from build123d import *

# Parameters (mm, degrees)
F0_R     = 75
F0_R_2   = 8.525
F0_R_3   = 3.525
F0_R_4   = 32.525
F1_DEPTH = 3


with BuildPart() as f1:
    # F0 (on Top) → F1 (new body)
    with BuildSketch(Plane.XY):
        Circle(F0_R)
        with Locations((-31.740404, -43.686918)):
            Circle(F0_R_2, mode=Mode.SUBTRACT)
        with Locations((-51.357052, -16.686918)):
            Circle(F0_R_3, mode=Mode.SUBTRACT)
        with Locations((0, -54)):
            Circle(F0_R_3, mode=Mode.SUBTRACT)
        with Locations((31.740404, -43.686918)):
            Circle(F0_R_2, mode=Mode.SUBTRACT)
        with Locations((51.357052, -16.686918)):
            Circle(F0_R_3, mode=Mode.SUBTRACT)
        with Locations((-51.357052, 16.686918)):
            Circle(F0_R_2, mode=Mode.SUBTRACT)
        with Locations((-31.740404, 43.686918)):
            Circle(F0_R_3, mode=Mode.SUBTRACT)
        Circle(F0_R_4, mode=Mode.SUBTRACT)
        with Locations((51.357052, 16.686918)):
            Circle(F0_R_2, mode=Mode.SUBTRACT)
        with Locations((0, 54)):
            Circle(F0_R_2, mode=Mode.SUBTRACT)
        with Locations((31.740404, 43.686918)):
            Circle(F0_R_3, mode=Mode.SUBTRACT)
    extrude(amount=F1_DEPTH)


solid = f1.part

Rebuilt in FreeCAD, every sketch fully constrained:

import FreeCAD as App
import Part
import Sketcher

V = App.Vector

doc = App.newDocument("Part")
body = doc.addObject("PartDesign::Body", "Body")

# Sketch on XY plane
sketch1 = doc.addObject("Sketcher::SketchObject", "Sketch")
body.addObject(sketch1)
sketch1.AttachmentSupport = (doc.XY_Plane, [""])
sketch1.MapMode = "FlatFace"
sketch1.addGeometry(Part.Circle(V(0, 0, 0), V(0, 0, 1), 75), False)
sketch1.addGeometry(Part.Circle(V(-31.740404, -43.686918, 0), V(0, 0, 1), 8.525), False)
sketch1.addGeometry(Part.Circle(V(-51.357052, -16.686918, 0), V(0, 0, 1), 3.525), False)
sketch1.addGeometry(Part.Circle(V(0, -54, 0), V(0, 0, 1), 3.525), False)
sketch1.addGeometry(Part.Circle(V(31.740404, -43.686918, 0), V(0, 0, 1), 8.525), False)
sketch1.addGeometry(Part.Circle(V(0, 0, 0), V(0, 0, 1), 32.525), False)
sketch1.addGeometry(Part.Circle(V(51.357052, -16.686918, 0), V(0, 0, 1), 3.525), False)
sketch1.addGeometry(Part.Circle(V(-51.357052, 16.686918, 0), V(0, 0, 1), 8.525), False)
sketch1.addGeometry(Part.Circle(V(-31.740404, 43.686918, 0), V(0, 0, 1), 3.525), False)
sketch1.addGeometry(Part.Circle(V(51.357052, 16.686918, 0), V(0, 0, 1), 8.525), False)
sketch1.addGeometry(Part.Circle(V(0, 54, 0), V(0, 0, 1), 8.525), False)
sketch1.addGeometry(Part.Circle(V(31.740404, 43.686918, 0), V(0, 0, 1), 3.525), False)
sketch1.addConstraint(Sketcher.Constraint("Coincident", 0, 3, -1, 1))
sketch1.addConstraint(Sketcher.Constraint("Coincident", 5, 3, -1, 1))
sketch1.addConstraint(Sketcher.Constraint("Equal", 2, 3))
sketch1.addConstraint(Sketcher.Constraint("Equal", 1, 4))
sketch1.addConstraint(Sketcher.Constraint("Equal", 3, 6))
sketch1.addConstraint(Sketcher.Constraint("Equal", 4, 7))
sketch1.addConstraint(Sketcher.Constraint("Equal", 6, 8))
sketch1.addConstraint(Sketcher.Constraint("Equal", 7, 9))
sketch1.addConstraint(Sketcher.Constraint("Equal", 9, 10))
sketch1.addConstraint(Sketcher.Constraint("Equal", 8, 11))
sketch1.addConstraint(Sketcher.Constraint("Symmetric", 6, 3, 7, 3, -1, 1))
sketch1.addConstraint(Sketcher.Constraint("Symmetric", 4, 3, 8, 3, -1, 1))
sketch1.addConstraint(Sketcher.Constraint("Symmetric", 2, 3, 9, 3, -1, 1))
sketch1.addConstraint(Sketcher.Constraint("Symmetric", 3, 3, 10, 3, -1, 1))
sketch1.addConstraint(Sketcher.Constraint("Symmetric", 1, 3, 11, 3, -1, 1))
sketch1.addConstraint(Sketcher.Constraint("Symmetric", 1, 3, 4, 3, -2))
sketch1.addConstraint(Sketcher.Constraint("Symmetric", 2, 3, 6, 3, -2))
sketch1.addConstraint(Sketcher.Constraint("PointOnObject", 3, 3, -2))
sketch1.addConstraint(Sketcher.Constraint("Diameter", 0, 150.0))
sketch1.addConstraint(Sketcher.Constraint("Diameter", 1, 17.05))
sketch1.addConstraint(Sketcher.Constraint("Diameter", 2, 7.05))
sketch1.addConstraint(Sketcher.Constraint("Diameter", 5, 65.05))
sketch1.addConstraint(Sketcher.Constraint("DistanceY", 3, 3, -1, 1, 54.0))
sketch1.addConstraint(Sketcher.Constraint("DistanceY", 1, 3, 2, 3, 27.0))
sketch1.addConstraint(Sketcher.Constraint("DistanceX", 2, 3, 1, 3, 19.616648))
sketch1.addConstraint(Sketcher.Constraint("DistanceX", 1, 3, 4, 3, 63.480808))
sketch1.addConstraint(Sketcher.Constraint("DistanceY", 1, 3, -1, 1, 43.686918))
pad1 = doc.addObject("PartDesign::Pad", "Pad")
body.addObject(pad1)
pad1.Profile = sketch1
pad1.Length = 3

doc.recompute()
